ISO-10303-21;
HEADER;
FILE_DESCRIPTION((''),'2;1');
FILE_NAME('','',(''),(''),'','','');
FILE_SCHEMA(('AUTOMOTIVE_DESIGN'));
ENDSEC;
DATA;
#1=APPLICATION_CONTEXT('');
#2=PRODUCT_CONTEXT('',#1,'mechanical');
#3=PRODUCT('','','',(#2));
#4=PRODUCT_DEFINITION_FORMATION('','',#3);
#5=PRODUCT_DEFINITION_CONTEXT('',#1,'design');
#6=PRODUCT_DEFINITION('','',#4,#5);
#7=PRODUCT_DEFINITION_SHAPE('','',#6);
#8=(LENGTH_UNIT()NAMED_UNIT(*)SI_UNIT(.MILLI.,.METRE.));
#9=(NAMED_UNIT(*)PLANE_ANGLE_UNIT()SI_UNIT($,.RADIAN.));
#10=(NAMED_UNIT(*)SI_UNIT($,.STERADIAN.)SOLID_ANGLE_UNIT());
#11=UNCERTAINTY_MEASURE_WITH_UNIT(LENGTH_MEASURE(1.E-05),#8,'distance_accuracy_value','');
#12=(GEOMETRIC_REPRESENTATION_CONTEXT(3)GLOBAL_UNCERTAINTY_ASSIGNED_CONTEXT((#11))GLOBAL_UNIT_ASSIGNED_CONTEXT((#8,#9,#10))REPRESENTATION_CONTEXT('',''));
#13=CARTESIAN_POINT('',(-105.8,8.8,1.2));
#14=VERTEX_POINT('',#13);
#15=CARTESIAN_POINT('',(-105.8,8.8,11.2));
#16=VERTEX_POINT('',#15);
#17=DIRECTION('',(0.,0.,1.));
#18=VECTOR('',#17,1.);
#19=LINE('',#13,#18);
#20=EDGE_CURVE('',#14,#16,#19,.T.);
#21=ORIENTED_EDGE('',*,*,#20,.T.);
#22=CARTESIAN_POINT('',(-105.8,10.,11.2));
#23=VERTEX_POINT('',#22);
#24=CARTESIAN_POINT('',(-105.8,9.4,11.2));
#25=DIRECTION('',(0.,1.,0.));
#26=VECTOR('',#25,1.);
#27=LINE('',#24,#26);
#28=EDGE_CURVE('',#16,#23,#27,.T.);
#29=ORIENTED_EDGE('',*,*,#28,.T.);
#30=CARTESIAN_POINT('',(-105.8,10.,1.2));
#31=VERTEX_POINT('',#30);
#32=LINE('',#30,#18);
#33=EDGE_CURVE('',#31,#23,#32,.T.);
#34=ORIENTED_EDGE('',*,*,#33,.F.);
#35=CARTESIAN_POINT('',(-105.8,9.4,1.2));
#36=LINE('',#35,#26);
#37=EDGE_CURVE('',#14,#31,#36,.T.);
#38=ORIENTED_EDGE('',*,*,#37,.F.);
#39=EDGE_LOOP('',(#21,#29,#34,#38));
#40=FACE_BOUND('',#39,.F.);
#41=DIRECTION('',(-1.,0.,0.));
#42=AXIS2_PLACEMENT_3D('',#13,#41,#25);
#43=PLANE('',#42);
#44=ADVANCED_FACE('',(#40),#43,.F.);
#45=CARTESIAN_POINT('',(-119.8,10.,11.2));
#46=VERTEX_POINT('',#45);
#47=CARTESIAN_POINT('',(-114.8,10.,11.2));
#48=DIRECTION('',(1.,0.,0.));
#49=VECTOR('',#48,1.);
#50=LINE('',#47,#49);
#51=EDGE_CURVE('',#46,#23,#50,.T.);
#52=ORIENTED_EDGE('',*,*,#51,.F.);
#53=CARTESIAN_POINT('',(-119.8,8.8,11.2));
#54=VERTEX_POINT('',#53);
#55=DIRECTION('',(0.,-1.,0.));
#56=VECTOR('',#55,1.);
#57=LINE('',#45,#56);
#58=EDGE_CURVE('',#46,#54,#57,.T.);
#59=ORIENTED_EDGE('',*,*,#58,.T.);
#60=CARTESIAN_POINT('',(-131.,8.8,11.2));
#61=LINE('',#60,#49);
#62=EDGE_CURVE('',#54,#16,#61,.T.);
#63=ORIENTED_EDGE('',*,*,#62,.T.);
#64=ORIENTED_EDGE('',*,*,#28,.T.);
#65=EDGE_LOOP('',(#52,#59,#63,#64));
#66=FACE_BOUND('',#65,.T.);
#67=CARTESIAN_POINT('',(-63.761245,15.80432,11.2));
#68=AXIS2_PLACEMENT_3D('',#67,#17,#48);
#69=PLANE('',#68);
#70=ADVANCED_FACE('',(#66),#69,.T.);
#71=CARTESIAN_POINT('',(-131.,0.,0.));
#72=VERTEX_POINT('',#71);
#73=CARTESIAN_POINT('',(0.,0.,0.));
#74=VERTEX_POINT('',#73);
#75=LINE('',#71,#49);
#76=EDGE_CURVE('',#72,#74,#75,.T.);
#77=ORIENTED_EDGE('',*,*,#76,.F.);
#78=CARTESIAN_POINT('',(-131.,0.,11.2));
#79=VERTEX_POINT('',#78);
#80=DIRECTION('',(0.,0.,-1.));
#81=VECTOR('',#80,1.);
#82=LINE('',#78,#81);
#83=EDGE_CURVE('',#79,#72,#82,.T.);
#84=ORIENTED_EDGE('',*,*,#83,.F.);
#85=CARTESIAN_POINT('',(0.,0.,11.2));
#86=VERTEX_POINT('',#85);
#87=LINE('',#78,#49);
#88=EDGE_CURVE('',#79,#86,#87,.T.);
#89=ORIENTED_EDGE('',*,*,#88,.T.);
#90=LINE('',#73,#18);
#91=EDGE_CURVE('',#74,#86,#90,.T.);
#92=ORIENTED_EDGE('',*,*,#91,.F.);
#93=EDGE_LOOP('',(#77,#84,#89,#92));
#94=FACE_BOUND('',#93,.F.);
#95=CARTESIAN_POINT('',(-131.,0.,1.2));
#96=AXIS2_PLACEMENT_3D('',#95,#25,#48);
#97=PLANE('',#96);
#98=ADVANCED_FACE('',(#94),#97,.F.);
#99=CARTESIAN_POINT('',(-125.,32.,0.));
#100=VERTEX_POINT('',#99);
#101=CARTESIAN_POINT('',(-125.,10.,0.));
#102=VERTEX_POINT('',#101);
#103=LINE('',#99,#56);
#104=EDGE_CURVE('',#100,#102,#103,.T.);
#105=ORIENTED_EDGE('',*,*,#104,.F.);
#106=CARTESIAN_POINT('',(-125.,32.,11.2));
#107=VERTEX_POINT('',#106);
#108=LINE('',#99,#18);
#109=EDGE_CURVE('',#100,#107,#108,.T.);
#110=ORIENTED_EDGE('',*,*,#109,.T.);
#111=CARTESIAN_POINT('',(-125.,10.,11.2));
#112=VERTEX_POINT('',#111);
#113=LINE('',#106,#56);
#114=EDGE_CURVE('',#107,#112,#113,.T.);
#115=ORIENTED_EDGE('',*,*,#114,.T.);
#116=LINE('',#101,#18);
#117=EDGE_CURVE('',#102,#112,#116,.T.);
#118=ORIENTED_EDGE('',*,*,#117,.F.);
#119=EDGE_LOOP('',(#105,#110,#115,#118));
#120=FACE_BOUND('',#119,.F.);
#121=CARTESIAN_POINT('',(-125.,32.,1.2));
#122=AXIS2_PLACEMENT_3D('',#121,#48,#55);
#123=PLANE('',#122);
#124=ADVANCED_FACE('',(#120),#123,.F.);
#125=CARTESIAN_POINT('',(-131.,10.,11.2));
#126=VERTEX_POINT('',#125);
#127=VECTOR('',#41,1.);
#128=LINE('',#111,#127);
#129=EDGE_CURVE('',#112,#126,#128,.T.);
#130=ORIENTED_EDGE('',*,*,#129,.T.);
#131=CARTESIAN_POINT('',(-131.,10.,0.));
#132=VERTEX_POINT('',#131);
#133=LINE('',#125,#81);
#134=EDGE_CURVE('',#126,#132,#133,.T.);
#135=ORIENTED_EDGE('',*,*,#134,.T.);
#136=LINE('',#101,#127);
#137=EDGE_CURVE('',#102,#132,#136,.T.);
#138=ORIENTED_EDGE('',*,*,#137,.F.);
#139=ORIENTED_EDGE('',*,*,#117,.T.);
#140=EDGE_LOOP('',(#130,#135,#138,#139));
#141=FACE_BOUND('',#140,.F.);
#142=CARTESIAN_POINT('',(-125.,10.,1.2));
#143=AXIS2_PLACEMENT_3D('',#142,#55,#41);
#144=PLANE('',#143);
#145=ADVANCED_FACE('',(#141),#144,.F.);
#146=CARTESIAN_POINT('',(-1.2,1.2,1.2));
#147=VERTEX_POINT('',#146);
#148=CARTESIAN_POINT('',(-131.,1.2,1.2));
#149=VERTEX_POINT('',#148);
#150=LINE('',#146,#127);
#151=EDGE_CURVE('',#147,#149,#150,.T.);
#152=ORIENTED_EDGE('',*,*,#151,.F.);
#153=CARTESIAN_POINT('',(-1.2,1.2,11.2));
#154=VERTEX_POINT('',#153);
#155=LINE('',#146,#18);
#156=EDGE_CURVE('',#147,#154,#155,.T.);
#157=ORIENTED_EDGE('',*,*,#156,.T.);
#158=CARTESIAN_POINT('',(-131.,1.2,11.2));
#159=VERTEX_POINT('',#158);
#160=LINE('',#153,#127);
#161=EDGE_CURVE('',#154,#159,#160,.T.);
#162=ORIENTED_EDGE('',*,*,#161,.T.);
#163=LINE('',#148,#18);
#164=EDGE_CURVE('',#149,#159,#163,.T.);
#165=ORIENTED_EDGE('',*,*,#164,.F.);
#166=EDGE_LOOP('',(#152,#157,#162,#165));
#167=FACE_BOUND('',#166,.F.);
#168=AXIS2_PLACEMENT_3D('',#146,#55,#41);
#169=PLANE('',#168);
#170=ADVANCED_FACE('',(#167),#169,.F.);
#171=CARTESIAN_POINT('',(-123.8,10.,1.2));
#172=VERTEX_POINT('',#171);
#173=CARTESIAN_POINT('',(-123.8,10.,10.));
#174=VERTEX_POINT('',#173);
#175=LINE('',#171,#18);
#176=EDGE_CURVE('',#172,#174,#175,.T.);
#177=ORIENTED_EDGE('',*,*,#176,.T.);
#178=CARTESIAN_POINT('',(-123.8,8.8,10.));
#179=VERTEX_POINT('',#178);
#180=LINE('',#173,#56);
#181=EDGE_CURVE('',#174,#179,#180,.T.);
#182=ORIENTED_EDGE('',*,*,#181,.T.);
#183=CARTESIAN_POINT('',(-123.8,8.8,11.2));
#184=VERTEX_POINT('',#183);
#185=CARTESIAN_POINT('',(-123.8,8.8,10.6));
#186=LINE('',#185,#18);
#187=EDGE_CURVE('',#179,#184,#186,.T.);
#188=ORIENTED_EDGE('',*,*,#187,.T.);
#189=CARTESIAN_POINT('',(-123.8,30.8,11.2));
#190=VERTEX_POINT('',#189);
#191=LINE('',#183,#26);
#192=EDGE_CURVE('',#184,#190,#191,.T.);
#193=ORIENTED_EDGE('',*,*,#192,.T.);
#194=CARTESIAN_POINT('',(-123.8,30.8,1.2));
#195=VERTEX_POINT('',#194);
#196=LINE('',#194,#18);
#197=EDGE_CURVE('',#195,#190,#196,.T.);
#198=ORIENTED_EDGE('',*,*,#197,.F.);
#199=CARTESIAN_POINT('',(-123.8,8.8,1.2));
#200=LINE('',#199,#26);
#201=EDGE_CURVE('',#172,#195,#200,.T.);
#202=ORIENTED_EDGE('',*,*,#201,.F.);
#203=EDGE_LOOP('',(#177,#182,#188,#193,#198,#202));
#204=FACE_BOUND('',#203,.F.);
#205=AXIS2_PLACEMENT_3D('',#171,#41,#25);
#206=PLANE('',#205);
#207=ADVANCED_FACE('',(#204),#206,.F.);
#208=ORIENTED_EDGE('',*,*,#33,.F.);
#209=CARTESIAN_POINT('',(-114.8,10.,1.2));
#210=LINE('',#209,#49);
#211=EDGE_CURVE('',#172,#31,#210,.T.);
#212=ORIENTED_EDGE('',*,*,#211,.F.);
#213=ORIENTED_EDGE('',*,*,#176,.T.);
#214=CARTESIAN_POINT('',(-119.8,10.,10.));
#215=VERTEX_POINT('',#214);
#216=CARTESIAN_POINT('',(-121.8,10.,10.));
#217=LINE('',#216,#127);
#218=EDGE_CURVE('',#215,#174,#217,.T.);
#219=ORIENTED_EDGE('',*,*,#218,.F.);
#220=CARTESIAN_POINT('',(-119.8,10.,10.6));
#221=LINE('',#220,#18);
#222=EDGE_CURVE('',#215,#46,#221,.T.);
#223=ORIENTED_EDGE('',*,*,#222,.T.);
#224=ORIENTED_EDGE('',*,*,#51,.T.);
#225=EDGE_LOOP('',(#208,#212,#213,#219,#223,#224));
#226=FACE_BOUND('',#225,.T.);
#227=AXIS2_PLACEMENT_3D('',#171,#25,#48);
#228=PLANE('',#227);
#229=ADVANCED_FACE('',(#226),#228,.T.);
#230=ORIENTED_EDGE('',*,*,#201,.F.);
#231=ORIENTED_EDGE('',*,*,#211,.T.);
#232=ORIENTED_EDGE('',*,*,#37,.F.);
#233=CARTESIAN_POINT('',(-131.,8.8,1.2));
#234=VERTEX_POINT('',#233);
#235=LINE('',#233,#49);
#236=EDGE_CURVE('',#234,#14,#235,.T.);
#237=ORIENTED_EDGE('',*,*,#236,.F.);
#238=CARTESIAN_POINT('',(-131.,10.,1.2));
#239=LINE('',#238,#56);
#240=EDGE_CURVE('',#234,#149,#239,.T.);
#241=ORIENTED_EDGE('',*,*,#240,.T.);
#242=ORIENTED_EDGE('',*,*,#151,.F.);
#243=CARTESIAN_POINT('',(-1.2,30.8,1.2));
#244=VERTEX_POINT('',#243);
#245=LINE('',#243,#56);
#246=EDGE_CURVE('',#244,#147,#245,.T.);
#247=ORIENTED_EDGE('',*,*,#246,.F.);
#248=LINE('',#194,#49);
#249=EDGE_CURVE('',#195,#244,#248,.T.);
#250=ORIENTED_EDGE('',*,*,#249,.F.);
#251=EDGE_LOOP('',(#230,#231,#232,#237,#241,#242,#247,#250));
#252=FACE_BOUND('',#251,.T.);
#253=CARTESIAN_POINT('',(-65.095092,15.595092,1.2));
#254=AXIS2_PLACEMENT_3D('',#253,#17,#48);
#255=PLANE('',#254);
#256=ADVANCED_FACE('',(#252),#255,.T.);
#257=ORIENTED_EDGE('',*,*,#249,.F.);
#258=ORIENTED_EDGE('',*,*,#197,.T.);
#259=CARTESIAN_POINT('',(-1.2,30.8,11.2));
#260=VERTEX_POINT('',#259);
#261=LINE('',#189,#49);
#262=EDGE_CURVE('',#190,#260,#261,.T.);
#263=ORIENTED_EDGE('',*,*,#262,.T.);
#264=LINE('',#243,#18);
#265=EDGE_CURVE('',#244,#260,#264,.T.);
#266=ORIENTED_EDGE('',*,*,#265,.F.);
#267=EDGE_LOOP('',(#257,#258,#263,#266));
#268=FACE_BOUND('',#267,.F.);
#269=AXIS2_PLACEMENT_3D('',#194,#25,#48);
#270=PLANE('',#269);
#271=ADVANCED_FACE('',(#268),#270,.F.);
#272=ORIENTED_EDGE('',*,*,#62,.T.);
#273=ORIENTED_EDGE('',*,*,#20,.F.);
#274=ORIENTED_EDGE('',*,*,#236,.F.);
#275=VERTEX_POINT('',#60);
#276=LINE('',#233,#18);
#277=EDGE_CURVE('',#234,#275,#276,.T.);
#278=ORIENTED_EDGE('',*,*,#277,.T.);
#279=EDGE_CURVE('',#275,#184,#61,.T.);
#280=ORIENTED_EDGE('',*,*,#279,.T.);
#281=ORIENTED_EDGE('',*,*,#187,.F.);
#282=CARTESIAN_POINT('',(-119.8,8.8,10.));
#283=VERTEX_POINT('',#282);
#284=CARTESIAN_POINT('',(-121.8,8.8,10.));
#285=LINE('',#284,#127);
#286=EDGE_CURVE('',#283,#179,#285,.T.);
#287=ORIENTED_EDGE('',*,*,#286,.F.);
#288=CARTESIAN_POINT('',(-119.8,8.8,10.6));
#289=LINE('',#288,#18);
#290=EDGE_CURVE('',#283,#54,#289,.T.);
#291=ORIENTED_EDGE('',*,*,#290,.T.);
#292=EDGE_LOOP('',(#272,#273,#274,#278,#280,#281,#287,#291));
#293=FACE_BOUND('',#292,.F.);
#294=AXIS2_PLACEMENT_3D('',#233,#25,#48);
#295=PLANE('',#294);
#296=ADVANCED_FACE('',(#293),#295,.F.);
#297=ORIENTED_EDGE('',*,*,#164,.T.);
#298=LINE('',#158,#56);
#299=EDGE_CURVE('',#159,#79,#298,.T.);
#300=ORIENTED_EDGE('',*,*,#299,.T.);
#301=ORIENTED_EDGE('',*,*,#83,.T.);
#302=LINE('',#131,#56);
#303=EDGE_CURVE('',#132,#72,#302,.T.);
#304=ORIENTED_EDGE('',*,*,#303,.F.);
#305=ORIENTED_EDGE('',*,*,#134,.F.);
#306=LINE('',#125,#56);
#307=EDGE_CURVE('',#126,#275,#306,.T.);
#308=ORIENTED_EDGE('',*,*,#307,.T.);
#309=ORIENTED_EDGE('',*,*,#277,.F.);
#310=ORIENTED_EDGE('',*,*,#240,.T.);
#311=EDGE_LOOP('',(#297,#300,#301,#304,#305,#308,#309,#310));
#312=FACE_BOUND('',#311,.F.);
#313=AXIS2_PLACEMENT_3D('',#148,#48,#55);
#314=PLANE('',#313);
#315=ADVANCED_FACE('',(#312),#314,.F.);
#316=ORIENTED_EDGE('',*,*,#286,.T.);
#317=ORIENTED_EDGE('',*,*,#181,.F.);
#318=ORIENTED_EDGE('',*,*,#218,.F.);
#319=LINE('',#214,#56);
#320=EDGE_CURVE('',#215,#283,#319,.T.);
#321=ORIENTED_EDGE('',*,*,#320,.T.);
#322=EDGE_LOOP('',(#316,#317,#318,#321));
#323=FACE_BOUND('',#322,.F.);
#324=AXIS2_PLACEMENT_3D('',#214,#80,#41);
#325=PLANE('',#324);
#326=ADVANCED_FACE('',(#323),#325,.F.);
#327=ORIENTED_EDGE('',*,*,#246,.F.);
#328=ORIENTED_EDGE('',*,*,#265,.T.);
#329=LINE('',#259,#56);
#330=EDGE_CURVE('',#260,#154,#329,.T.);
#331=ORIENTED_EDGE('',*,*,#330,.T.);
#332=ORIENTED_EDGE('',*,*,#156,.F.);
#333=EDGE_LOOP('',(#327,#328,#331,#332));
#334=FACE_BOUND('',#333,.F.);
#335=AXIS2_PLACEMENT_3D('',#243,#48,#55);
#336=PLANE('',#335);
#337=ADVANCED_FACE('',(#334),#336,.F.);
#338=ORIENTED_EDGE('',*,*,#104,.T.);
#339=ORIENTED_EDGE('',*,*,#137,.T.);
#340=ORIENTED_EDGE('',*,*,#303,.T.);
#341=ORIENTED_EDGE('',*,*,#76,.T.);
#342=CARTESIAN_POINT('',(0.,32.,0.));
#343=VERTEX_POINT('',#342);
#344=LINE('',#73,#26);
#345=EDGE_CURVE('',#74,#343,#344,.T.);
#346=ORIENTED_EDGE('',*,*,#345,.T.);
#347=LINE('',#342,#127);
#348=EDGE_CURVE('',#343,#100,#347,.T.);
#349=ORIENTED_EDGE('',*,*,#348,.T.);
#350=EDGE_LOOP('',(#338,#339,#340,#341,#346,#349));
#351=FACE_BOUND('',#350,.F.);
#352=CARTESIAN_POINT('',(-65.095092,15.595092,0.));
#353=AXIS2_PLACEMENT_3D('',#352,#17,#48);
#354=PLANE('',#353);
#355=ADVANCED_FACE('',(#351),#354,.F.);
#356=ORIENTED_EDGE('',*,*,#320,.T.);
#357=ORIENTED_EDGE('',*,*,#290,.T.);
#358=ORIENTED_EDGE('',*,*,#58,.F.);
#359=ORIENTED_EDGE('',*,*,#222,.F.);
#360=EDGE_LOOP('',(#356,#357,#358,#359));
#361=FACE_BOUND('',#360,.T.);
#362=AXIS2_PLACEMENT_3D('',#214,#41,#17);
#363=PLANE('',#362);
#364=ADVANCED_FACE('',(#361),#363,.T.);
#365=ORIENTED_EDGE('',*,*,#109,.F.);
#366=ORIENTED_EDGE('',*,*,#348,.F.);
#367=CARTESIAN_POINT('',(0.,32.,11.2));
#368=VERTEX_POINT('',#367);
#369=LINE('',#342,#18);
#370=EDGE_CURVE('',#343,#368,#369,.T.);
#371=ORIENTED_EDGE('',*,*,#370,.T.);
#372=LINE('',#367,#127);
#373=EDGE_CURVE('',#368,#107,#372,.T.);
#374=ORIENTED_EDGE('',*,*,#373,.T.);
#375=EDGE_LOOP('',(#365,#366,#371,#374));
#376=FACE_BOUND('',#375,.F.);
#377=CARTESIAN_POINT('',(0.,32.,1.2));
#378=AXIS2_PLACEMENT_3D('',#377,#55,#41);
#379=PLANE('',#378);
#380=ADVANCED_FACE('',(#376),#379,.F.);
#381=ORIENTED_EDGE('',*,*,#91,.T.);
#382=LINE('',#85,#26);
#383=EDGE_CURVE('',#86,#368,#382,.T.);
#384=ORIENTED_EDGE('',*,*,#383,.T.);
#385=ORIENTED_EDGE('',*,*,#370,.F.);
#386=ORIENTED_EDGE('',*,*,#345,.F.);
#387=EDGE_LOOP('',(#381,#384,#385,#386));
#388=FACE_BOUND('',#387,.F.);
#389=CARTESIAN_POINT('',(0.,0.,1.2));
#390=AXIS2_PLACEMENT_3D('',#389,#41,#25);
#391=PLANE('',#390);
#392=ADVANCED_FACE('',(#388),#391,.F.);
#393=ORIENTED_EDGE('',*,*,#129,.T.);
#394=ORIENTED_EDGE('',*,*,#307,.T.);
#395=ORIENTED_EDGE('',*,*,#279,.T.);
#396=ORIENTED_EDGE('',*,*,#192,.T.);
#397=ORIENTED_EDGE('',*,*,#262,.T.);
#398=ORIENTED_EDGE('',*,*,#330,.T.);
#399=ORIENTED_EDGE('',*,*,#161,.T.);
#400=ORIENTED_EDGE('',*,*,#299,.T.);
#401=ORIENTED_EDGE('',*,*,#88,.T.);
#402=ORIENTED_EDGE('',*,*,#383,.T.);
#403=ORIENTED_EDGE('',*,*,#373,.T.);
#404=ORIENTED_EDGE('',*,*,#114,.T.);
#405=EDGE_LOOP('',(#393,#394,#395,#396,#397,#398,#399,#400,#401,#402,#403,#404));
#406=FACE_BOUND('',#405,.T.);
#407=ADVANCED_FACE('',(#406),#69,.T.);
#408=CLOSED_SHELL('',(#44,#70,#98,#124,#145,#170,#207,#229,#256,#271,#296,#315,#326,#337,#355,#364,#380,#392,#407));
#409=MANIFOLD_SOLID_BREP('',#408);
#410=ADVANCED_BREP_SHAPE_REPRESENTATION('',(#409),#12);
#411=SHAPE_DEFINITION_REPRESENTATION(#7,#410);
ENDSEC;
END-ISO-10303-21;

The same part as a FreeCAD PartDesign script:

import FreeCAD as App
import Part
import Sketcher
Q = App.Units.Quantity


def add_polygon(sketch, points):
    """Adds a closed chain of lines whose ends are joined by coincident constraints."""
    first, n = sketch.GeometryCount, len(points)
    for a, b in zip(points, points[1:] + points[:1]):
        sketch.addGeometry(Part.LineSegment(App.Vector(*a, 0), App.Vector(*b, 0)), False)
    for i in range(n):
        sketch.addConstraint(Sketcher.Constraint("Coincident", first + i, 2, first + (i + 1) % n, 1))

doc = App.newDocument("Part")
body = doc.addObject("PartDesign::Body", "Body")

# Sketch on XY plane
sketch1 = doc.addObject("Sketcher::SketchObject", "Sketch")
body.addObject(sketch1)
sketch1.AttachmentSupport = (doc.XY_Plane, [""])
sketch1.MapMode = "FlatFace"
add_polygon(sketch1, [(0, 0), (0, 32), (-125, 32), (-125, 10), (-131, 10), (-131, 0)])  # lines 0-5
sketch1.addConstraint(Sketcher.Constraint("Vertical", 0))
sketch1.addConstraint(Sketcher.Constraint("Horizontal", 1))
sketch1.addConstraint(Sketcher.Constraint("Vertical", 2))
sketch1.addConstraint(Sketcher.Constraint("Horizontal", 3))
sketch1.addConstraint(Sketcher.Constraint("Vertical", 4))
sketch1.addConstraint(Sketcher.Constraint("Horizontal", 5))
sketch1.addConstraint(Sketcher.Constraint("Coincident", 5, 2, -1, 1))
sketch1.addConstraint(Sketcher.Constraint("DistanceX", 1, 2, 1, 1, Q("125 mm")))
sketch1.addConstraint(Sketcher.Constraint("DistanceX", 3, 2, 3, 1, Q("6 mm")))
sketch1.addConstraint(Sketcher.Constraint("DistanceY", 0, 1, 0, 2, Q("32 mm")))
sketch1.addConstraint(Sketcher.Constraint("DistanceY", 2, 2, 2, 1, Q("22 mm")))
pad1 = doc.addObject("PartDesign::Pad", "Pad")
body.addObject(pad1)
pad1.Profile = sketch1
pad1.Length = 1.2

# Sketch on XY plane
sketch2 = doc.addObject("Sketcher::SketchObject", "Sketch001")
body.addObject(sketch2)
sketch2.AttachmentSupport = (doc.XY_Plane, [""])
sketch2.MapMode = "FlatFace"
sketch2.AttachmentOffset = App.Placement(App.Vector(0, 0, 1.2), App.Rotation())
add_polygon(sketch2, [(-131, 0), (0, 0), (0, 32), (-125, 32), (-125, 10), (-131, 10), (-131, 8.8), (-105.8, 8.8), (-105.8, 10), (-123.8, 10), (-123.8, 30.8), (-1.2, 30.8), (-1.2, 1.2), (-131, 1.2)])  # lines 0-13
sketch2.addConstraint(Sketcher.Constraint("Horizontal", 0))
sketch2.addConstraint(Sketcher.Constraint("Vertical", 1))
sketch2.addConstraint(Sketcher.Constraint("Horizontal", 2))
sketch2.addConstraint(Sketcher.Constraint("Vertical", 3))
sketch2.addConstraint(Sketcher.Constraint("Horizontal", 4))
sketch2.addConstraint(Sketcher.Constraint("Vertical", 5))
sketch2.addConstraint(Sketcher.Constraint("Horizontal", 6))
sketch2.addConstraint(Sketcher.Constraint("Vertical", 7))
sketch2.addConstraint(Sketcher.Constraint("Horizontal", 8))
sketch2.addConstraint(Sketcher.Constraint("Vertical", 9))
sketch2.addConstraint(Sketcher.Constraint("Horizontal", 10))
sketch2.addConstraint(Sketcher.Constraint("Vertical", 11))
sketch2.addConstraint(Sketcher.Constraint("Horizontal", 12))
sketch2.addConstraint(Sketcher.Constraint("Vertical", 13))
sketch2.addConstraint(Sketcher.Constraint("Coincident", 0, 2, -1, 1))
sketch2.addConstraint(Sketcher.Constraint("Horizontal", 4, 2, 7, 2))
sketch2.addConstraint(Sketcher.Constraint("Vertical", 5, 2, 12, 2))
sketch2.addConstraint(Sketcher.Constraint("Equal", 7, 13))
sketch2.addConstraint(Sketcher.Constraint("DistanceX", 0, 1, 0, 2, Q("131 mm")))
sketch2.addConstraint(Sketcher.Constraint("DistanceX", 2, 2, 2, 1, Q("125 mm")))
sketch2.addConstraint(Sketcher.Constraint("DistanceX", 8, 2, 8, 1, Q("18 mm")))
sketch2.addConstraint(Sketcher.Constraint("DistanceY", 1, 1, 1, 2, Q("32 mm")))
sketch2.addConstraint(Sketcher.Constraint("DistanceY", 3, 2, 3, 1, Q("22 mm")))
sketch2.addConstraint(Sketcher.Constraint("DistanceX", 6, 1, 6, 2, Q("25.2 mm")))
sketch2.addConstraint(Sketcher.Constraint("DistanceX", 10, 1, 10, 2, Q("122.6 mm")))
sketch2.addConstraint(Sketcher.Constraint("DistanceY", 5, 2, 5, 1, Q("1.2 mm")))
sketch2.addConstraint(Sketcher.Constraint("DistanceY", 9, 1, 9, 2, Q("20.8 mm")))
pad2 = doc.addObject("PartDesign::Pad", "Pad001")
body.addObject(pad2)
pad2.Profile = sketch2
pad2.Length = 10

# Sketch on XZ plane
sketch3 = doc.addObject("Sketcher::SketchObject", "Sketch002")
body.addObject(sketch3)
sketch3.AttachmentSupport = (doc.XZ_Plane, [""])
sketch3.MapMode = "FlatFace"
sketch3.AttachmentOffset = App.Placement(App.Vector(0, 0, -10), App.Rotation())
add_polygon(sketch3, [(-119.8, 11.2), (-119.8, 10), (-123.8, 10), (-123.8, 11.2)])  # lines 0-3
sketch3.addConstraint(Sketcher.Constraint("Vertical", 0))
sketch3.addConstraint(Sketcher.Constraint("Horizontal", 1))
sketch3.addConstraint(Sketcher.Constraint("Vertical", 2))
sketch3.addConstraint(Sketcher.Constraint("Horizontal", 3))
sketch3.addConstraint(Sketcher.Constraint("DistanceX", 1, 2, 1, 1, Q("4 mm")))
sketch3.addConstraint(Sketcher.Constraint("DistanceY", 0, 2, 0, 1, Q("1.2 mm")))
sketch3.addConstraint(Sketcher.Constraint("DistanceY", -1, 1, 0, 2, Q("10 mm")))
sketch3.addConstraint(Sketcher.Constraint("DistanceX", 0, 2, -1, 1, Q("119.8 mm")))
pocket1 = doc.addObject("PartDesign::Pocket", "Pocket")
body.addObject(pocket1)
pocket1.Profile = sketch3
pocket1.Length = 1.2
pocket1.Reversed = True

doc.recompute()
